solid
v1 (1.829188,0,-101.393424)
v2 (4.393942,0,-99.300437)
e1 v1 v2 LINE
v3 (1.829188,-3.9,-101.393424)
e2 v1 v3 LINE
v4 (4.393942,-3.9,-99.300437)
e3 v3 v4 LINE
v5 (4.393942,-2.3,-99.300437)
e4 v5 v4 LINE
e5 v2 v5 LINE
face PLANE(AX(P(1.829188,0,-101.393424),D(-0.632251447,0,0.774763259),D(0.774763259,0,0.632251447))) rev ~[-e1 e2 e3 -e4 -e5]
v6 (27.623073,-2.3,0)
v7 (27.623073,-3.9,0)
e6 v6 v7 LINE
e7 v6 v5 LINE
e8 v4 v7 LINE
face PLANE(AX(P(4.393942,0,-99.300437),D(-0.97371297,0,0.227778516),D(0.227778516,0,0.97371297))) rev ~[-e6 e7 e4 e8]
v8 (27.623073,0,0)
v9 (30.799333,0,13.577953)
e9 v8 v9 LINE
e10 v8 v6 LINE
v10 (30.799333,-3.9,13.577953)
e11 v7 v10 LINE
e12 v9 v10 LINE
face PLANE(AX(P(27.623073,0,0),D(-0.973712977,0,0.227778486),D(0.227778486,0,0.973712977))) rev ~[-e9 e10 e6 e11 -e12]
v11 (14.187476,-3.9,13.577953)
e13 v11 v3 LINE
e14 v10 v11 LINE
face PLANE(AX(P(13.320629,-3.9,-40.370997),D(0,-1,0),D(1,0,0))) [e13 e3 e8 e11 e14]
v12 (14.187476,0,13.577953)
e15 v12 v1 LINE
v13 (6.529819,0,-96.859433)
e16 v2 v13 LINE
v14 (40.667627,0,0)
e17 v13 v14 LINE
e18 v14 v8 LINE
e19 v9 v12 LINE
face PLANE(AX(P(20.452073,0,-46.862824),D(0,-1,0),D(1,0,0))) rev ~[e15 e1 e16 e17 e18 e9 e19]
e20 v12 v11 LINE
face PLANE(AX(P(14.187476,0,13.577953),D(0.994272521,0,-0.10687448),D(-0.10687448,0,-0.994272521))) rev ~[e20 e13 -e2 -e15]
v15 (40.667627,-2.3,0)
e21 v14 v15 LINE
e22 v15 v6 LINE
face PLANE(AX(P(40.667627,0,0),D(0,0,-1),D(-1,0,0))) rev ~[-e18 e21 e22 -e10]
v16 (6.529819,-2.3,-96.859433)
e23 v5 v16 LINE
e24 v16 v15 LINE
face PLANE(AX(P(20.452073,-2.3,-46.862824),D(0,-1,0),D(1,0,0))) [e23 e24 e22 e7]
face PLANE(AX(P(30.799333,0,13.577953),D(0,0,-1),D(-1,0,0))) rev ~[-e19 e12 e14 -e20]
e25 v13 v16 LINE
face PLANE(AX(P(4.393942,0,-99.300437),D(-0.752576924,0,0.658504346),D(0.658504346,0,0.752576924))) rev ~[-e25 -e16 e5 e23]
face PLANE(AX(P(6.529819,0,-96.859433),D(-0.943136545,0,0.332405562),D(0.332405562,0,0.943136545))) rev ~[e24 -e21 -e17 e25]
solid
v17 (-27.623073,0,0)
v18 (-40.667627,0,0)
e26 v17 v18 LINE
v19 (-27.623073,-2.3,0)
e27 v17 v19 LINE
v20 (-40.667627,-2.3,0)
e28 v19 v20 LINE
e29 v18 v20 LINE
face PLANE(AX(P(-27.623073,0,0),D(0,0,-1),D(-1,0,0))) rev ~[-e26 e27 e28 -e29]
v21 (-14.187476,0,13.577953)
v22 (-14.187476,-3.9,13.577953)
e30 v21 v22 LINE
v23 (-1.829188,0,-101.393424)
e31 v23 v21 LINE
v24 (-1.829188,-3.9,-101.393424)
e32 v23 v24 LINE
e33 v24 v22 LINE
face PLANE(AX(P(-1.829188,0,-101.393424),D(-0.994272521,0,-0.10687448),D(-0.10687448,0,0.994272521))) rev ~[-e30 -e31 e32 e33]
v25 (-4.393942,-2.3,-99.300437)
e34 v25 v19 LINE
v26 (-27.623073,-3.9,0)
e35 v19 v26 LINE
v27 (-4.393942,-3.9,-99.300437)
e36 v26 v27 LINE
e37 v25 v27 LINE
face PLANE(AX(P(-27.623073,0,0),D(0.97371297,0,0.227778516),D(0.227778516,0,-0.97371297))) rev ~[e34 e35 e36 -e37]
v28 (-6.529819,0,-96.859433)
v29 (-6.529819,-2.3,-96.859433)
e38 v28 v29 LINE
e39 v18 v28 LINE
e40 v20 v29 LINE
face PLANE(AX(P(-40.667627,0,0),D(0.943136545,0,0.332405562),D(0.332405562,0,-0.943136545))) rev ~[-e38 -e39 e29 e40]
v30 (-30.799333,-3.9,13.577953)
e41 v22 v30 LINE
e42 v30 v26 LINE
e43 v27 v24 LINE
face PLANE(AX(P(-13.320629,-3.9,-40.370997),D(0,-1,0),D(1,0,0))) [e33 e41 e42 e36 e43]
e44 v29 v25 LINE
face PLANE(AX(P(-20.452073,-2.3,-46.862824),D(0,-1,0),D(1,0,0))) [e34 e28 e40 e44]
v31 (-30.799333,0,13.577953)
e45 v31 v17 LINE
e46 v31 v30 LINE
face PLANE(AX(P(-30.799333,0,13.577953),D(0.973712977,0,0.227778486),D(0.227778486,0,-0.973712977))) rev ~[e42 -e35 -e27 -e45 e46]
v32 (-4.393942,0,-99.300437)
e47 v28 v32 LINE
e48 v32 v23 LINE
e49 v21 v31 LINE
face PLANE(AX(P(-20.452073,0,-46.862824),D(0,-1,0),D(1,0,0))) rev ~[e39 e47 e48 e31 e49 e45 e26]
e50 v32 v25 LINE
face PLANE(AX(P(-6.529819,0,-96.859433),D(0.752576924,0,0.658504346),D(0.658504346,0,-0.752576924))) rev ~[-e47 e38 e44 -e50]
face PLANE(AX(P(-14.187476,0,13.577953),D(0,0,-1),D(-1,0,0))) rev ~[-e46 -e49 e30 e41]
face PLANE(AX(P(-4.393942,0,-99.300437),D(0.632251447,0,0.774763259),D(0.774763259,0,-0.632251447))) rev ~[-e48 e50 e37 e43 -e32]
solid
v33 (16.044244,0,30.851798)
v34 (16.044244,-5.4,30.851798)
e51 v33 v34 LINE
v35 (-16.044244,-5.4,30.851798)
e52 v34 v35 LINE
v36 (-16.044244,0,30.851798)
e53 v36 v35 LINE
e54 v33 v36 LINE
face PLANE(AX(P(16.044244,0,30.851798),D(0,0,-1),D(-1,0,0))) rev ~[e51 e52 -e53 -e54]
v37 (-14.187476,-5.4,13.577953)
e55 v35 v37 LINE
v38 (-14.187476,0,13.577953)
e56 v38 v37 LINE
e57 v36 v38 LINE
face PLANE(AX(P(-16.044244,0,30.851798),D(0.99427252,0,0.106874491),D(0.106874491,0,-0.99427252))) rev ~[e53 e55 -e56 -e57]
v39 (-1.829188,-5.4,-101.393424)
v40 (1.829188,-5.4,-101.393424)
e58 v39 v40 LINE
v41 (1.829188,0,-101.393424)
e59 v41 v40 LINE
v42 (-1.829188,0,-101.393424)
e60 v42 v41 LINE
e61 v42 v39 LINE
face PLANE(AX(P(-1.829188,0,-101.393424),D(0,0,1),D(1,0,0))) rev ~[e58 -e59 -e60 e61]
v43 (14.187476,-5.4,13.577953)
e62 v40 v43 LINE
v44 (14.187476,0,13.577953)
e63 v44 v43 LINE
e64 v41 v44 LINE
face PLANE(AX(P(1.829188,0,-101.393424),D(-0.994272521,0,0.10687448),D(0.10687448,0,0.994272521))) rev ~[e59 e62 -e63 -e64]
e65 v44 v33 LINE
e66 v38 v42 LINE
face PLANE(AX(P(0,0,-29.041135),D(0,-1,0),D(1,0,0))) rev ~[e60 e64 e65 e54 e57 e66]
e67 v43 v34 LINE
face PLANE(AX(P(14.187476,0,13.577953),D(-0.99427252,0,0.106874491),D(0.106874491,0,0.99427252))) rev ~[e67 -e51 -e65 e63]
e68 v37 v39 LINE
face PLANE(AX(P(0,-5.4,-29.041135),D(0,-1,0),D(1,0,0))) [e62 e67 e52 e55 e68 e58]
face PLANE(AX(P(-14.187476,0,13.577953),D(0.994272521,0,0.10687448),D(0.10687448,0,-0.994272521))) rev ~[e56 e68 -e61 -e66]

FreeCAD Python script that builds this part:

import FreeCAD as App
import Part
import Sketcher

doc = App.newDocument("Part")
body = doc.addObject("PartDesign::Body", "Body")

sketch1 = body.newObject("Sketcher::SketchObject", "Sketch")
sketch1.AttachmentSupport = (doc.getObject("XZ_Plane"), [""])
sketch1.MapMode = "FlatFace"
sketch1.addGeometry([
    Part.LineSegment(App.Vector(16.044244, 30.851798, 0), App.Vector(-16.044244, 30.851798, 0)),
    Part.LineSegment(App.Vector(-16.044244, 30.851798, 0), App.Vector(-14.187476, 13.577953, 0)),
    Part.LineSegment(App.Vector(-14.187476, 13.577953, 0), App.Vector(-1.829188, -101.393424, 0)),
    Part.LineSegment(App.Vector(-1.829188, -101.393424, 0), App.Vector(1.829188, -101.393424, 0)),
    Part.LineSegment(App.Vector(1.829188, -101.393424, 0), App.Vector(14.187476, 13.577953, 0)),
    Part.LineSegment(App.Vector(14.187476, 13.577953, 0), App.Vector(16.044244, 30.851798, 0)),
], False)
sketch1.addConstraint([
    Sketcher.Constraint("Coincident", 0, 2, 1, 1),
    Sketcher.Constraint("Coincident", 1, 2, 2, 1),
    Sketcher.Constraint("Coincident", 2, 2, 3, 1),
    Sketcher.Constraint("Coincident", 3, 2, 4, 1),
    Sketcher.Constraint("Coincident", 4, 2, 5, 1),
    Sketcher.Constraint("Coincident", 5, 2, 0, 1),
    Sketcher.Constraint("Horizontal", 0),
    Sketcher.Constraint("Horizontal", 3),
    Sketcher.Constraint("Symmetric", 1, 2, 4, 2, -2),
    Sketcher.Constraint("Parallel", 1, 2),
    Sketcher.Constraint("Parallel", 4, 5),
    Sketcher.Constraint("Equal", 2, 4),
    Sketcher.Constraint("Distance", 1, 17.373351),
    Sketcher.Constraint("DistanceX", 0, 2, 0, 1, 32.088488),
    Sketcher.Constraint("DistanceX", 3, 1, 3, 2, 3.658376),
    Sketcher.Constraint("DistanceY", 2, 2, 0, 2, 132.245222),
    Sketcher.Constraint("DistanceY", -1, 1, 0, 2, 30.851798),
])
pad1 = body.newObject("PartDesign::Pad", "Pad")
pad1.Profile = sketch1
pad1.Length = 5.4
body2 = doc.addObject("PartDesign::Body", "Body001")

sketch2 = body2.newObject("Sketcher::SketchObject", "Sketch001")
sketch2.AttachmentSupport = (doc.getObject("XZ_Plane001"), [""])
sketch2.MapMode = "FlatFace"
sketch2.addGeometry([
    Part.LineSegment(App.Vector(-1.829188, -101.393424, 0), App.Vector(-14.187476, 13.577953, 0)),
    Part.LineSegment(App.Vector(-14.187476, 13.577953, 0), App.Vector(-30.799333, 13.577953, 0)),
    Part.LineSegment(App.Vector(-30.799333, 13.577953, 0), App.Vector(-27.623073, 0, 0)),
    Part.LineSegment(App.Vector(-27.623073, 0, 0), App.Vector(-4.393942, -99.300437, 0)),
    Part.LineSegment(App.Vector(-4.393942, -99.300437, 0), App.Vector(-1.829188, -101.393424, 0)),
], False)
sketch2.addConstraint([
    Sketcher.Constraint("Coincident", 0, 2, 1, 1),
    Sketcher.Constraint("Coincident", 1, 2, 2, 1),
    Sketcher.Constraint("Coincident", 2, 2, 3, 1),
    Sketcher.Constraint("Coincident", 3, 2, 4, 1),
    Sketcher.Constraint("Coincident", 4, 2, 0, 1),
    Sketcher.Constraint("Horizontal", 1),
    Sketcher.Constraint("PointOnObject", 2, 2, -1),
    Sketcher.Constraint("Parallel", 2, 3),
    Sketcher.Constraint("Distance", 3, 101.98122),
    Sketcher.Constraint("Distance", 4, 3.310371),
    Sketcher.Constraint("DistanceX", 1, 2, 1, 1, 16.611857),
    Sketcher.Constraint("DistanceX", 1, 2, 2, 2, 3.17626),
    Sketcher.Constraint("DistanceX", 2, 2, 3, 2, 23.229131),
    Sketcher.Constraint("Distance", 0, 115.633666),
    Sketcher.Constraint("DistanceX", 0, 2, -1, 1, 14.187476),
])
pad2 = body2.newObject("PartDesign::Pad", "Pad001")
pad2.Profile = sketch2
pad2.Length = 3.9

sketch3 = body2.newObject("Sketcher::SketchObject", "Sketch002")
sketch3.AttachmentSupport = (doc.getObject("XZ_Plane001"), [""])
sketch3.MapMode = "FlatFace"
sketch3.addGeometry([
    Part.LineSegment(App.Vector(-6.529819, -96.859433, 0), App.Vector(-4.393942, -99.300437, 0)),
    Part.LineSegment(App.Vector(-4.393942, -99.300437, 0), App.Vector(-27.623073, 0, 0)),
    Part.LineSegment(App.Vector(-27.623073, 0, 0), App.Vector(-40.667627, 0, 0)),
    Part.LineSegment(App.Vector(-40.667627, 0, 0), App.Vector(-6.529819, -96.859433, 0)),
], False)
sketch3.addConstraint([
    Sketcher.Constraint("Coincident", 0, 2, 1, 1),
    Sketcher.Constraint("Coincident", 1, 2, 2, 1),
    Sketcher.Constraint("Coincident", 2, 2, 3, 1),
    Sketcher.Constraint("Coincident", 3, 2, 0, 1),
    Sketcher.Constraint("Horizontal", 2),
    Sketcher.Constraint("PointOnObject", 1, 2, -1),
    Sketcher.Constraint("Distance", 1, 101.98122),
    Sketcher.Constraint("Distance", 3, 102.699268),
    Sketcher.Constraint("DistanceX", 2, 2, 2, 1, 13.044554),
    Sketcher.Constraint("DistanceX", 3, 2, -1, 1, 6.529819),
    Sketcher.Constraint("DistanceX", 1, 2, 0, 2, 23.229131),
    Sketcher.Constraint("DistanceX", 2, 2, 3, 2, 34.137808),
])
pad3 = body2.newObject("PartDesign::Pad", "Pad002")
pad3.Profile = sketch3
pad3.Length = 2.3
body3 = doc.addObject("PartDesign::Body", "Body002")

sketch4 = body3.newObject("Sketcher::SketchObject", "Sketch003")
sketch4.AttachmentSupport = (doc.getObject("XZ_Plane002"), [""])
sketch4.MapMode = "FlatFace"
sketch4.addGeometry([
    Part.LineSegment(App.Vector(30.799333, 13.577953, 0), App.Vector(14.187476, 13.577953, 0)),
    Part.LineSegment(App.Vector(14.187476, 13.577953, 0), App.Vector(1.829188, -101.393424, 0)),
    Part.LineSegment(App.Vector(1.829188, -101.393424, 0), App.Vector(4.393942, -99.300437, 0)),
    Part.LineSegment(App.Vector(4.393942, -99.300437, 0), App.Vector(27.623073, 0, 0)),
    Part.LineSegment(App.Vector(27.623073, 0, 0), App.Vector(30.799333, 13.577953, 0)),
], False)
sketch4.addConstraint([
    Sketcher.Constraint("Coincident", 0, 2, 1, 1),
    Sketcher.Constraint("Coincident", 1, 2, 2, 1),
    Sketcher.Constraint("Coincident", 2, 2, 3, 1),
    Sketcher.Constraint("Coincident", 3, 2, 4, 1),
    Sketcher.Constraint("Coincident", 4, 2, 0, 1),
    Sketcher.Constraint("Horizontal", 0),
    Sketcher.Constraint("PointOnObject", 3, 2, -1),
    Sketcher.Constraint("Parallel", 3, 4),
    Sketcher.Constraint("Distance", 2, 3.310371),
    Sketcher.Constraint("Distance", 3, 101.98122),
    Sketcher.Constraint("DistanceX", 0, 2, 0, 1, 16.611857),
    Sketcher.Constraint("DistanceY", 2, 2, 0, 2, 112.87839),
    Sketcher.Constraint("DistanceX", 2, 2, 3, 2, 23.229131),
    Sketcher.Constraint("Distance", 1, 115.633666),
    Sketcher.Constraint("DistanceX", -1, 1, 0, 2, 14.187476),
])
pad4 = body3.newObject("PartDesign::Pad", "Pad003")
pad4.Profile = sketch4
pad4.Length = 3.9

sketch5 = body3.newObject("Sketcher::SketchObject", "Sketch004")
sketch5.AttachmentSupport = (doc.getObject("XZ_Plane002"), [""])
sketch5.MapMode = "FlatFace"
sketch5.addGeometry([
    Part.LineSegment(App.Vector(27.623073, 0, 0), App.Vector(4.393942, -99.300437, 0)),
    Part.LineSegment(App.Vector(4.393942, -99.300437, 0), App.Vector(6.529819, -96.859433, 0)),
    Part.LineSegment(App.Vector(6.529819, -96.859433, 0), App.Vector(40.667627, 0, 0)),
    Part.LineSegment(App.Vector(40.667627, 0, 0), App.Vector(27.623073, 0, 0)),
], False)
sketch5.addConstraint([
    Sketcher.Constraint("Coincident", 0, 2, 1, 1),
    Sketcher.Constraint("Coincident", 1, 2, 2, 1),
    Sketcher.Constraint("Coincident", 2, 2, 3, 1),
    Sketcher.Constraint("Coincident", 3, 2, 0, 1),
    Sketcher.Constraint("Horizontal", 3),
    Sketcher.Constraint("PointOnObject", 2, 2, -1),
    Sketcher.Constraint("Distance", 0, 101.98122),
    Sketcher.Constraint("Distance", 2, 102.699268),
    Sketcher.Constraint("DistanceX", 3, 2, 3, 1, 13.044554),
    Sketcher.Constraint("DistanceX", -1, 1, 1, 2, 6.529819),
    Sketcher.Constraint("DistanceX", 1, 2, 2, 2, 34.137808),
    Sketcher.Constraint("DistanceX", 0, 2, 3, 2, 23.229131),
])
pad5 = body3.newObject("PartDesign::Pad", "Pad004")
pad5.Profile = sketch5
pad5.Length = 2.3

doc.recompute()
